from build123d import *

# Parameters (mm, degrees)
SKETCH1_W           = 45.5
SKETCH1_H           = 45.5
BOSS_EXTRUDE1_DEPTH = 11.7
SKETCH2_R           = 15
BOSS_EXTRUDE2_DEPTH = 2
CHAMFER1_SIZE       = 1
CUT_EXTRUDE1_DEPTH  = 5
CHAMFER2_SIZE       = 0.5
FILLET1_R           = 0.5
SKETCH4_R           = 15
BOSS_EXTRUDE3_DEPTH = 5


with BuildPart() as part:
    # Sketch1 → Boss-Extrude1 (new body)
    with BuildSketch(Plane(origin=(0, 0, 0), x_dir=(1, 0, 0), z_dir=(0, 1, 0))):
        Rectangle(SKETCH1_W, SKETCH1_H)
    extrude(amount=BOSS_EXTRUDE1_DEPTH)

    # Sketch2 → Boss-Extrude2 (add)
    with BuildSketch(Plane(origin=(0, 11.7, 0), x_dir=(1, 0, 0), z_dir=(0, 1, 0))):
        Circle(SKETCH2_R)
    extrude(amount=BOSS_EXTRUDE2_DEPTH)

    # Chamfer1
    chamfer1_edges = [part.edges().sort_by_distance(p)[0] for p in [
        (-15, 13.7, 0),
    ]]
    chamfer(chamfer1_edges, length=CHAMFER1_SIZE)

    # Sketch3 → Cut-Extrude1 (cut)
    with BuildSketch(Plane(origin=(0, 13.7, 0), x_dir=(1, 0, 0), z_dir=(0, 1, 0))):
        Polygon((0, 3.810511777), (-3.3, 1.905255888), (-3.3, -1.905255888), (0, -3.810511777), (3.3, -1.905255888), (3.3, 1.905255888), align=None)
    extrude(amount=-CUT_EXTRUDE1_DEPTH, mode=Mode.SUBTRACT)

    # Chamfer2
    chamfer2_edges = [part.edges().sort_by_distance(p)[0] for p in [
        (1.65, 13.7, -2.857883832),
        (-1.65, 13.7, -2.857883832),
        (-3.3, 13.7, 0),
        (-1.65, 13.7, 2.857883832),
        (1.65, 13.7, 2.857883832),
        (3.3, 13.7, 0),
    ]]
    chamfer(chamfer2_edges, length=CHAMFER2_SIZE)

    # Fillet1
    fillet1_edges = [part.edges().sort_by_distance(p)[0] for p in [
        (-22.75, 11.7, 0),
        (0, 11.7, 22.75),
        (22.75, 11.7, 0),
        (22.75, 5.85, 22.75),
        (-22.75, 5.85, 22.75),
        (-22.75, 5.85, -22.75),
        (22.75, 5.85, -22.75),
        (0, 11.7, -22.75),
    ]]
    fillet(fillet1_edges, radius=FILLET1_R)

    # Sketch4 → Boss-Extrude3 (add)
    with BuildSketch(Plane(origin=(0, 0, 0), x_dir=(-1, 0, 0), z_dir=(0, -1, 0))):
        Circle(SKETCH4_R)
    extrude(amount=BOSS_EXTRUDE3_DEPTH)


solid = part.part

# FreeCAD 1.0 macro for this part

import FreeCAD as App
import Part
import Sketcher
from FreeCAD import Vector
Q = App.Units.Quantity


def edges_at(feature, points):
    """Names of the edges that pass closest to the given points."""
    edges = feature.Shape.Edges
    near = lambda p: min(range(len(edges)), key=lambda i: edges[i].distToShape(Part.Vertex(*p))[0])
    return sorted({f"Edge{near(p) + 1}" for p in points})


def add_polygon(sketch, points):
    """Adds a closed chain of lines whose ends are joined by coincident constraints."""
    first, n = sketch.GeometryCount, len(points)
    for a, b in zip(points, points[1:] + points[:1]):
        sketch.addGeometry(Part.LineSegment(App.Vector(*a, 0), App.Vector(*b, 0)), False)
    for i in range(n):
        sketch.addConstraint(Sketcher.Constraint("Coincident", first + i, 2, first + (i + 1) % n, 1))

doc = App.newDocument("Part")
params = doc.addObject("Spreadsheet::Sheet", "Params")
for row, (alias, value) in enumerate([
    ("sketch1_width", "45.5 mm"),
    ("pad1_length", "11.7 mm"),
    ("sketch2_diameter", "30 mm"),
    ("pad2_length", "2 mm"),
    ("chamfer_size", "1 mm"),
    ("pocket1_length", "5 mm"),
    ("chamfer2_size", "0.5 mm"),
    ("fillet_radius", "0.5 mm"),
    ("sketch4_diameter", "30 mm"),
    ("pad3_length", "5 mm"),
], start=1):
    params.set(f"A{row}", alias)
    params.set(f"B{row}", "=" + value)
    params.setAlias(f"B{row}", alias)

body = doc.addObject("PartDesign::Body", "Body")

# Sketch on XZ plane
sketch1 = body.newObject("Sketcher::SketchObject", "Sketch")
sketch1.AttachmentSupport = (doc.getObject("XZ_Plane"), [""])
sketch1.MapMode = "FlatFace"
add_polygon(sketch1, [(-23, -23), (-23, 23), (23, 23), (23, -23)])  # lines 0-3
sketch1.addConstraint([
    Sketcher.Constraint("Vertical", 0),
    Sketcher.Constraint("Horizontal", 1),
    Sketcher.Constraint("Vertical", 2),
    Sketcher.Constraint("Horizontal", 3),
    Sketcher.Constraint("Symmetric", 0, 2, 2, 2, -1, 1),
    Sketcher.Constraint("Equal", 3, 0),
    Sketcher.Constraint("DistanceX", 1, 1, 1, 2, 45.5),
])
sketch1.setExpression("Constraints[10]", "Params.sketch1_width")
pad1 = body.newObject("PartDesign::Pad", "Pad")
pad1.Profile = sketch1
pad1.setExpression("Length", "Params.pad1_length")
pad1.Reversed = True

# Sketch on XZ plane
sketch2 = body.newObject("Sketcher::SketchObject", "Sketch001")
sketch2.AttachmentSupport = (doc.getObject("XZ_Plane"), [""])
sketch2.MapMode = "FlatFace"
sketch2.AttachmentOffset = App.Placement(Vector(0, 0, -11.7), App.Rotation())
sketch2.addGeometry(Part.Circle(Vector(0, 0, 0), Vector(0, 0, 1), 15), False)
sketch2.addConstraint([
    Sketcher.Constraint("Coincident", 0, 3, -1, 1),
    Sketcher.Constraint("Diameter", 0, 30.0),
])
sketch2.setExpression("Constraints[1]", "Params.sketch2_diameter")
pad2 = body.newObject("PartDesign::Pad", "Pad001")
pad2.Profile = sketch2
pad2.setExpression("Length", "Params.pad2_length")
pad2.Reversed = True
doc.recompute()

chamfer = body.newObject("PartDesign::Chamfer", "Chamfer")
chamfer.Base = (pad2, edges_at(pad2, [(-15, 13.7, 0)]))
chamfer.setExpression("Size", "Params.chamfer_size")

# Sketch on XZ plane
sketch3 = body.newObject("Sketcher::SketchObject", "Sketch002")
sketch3.AttachmentSupport = (doc.getObject("XZ_Plane"), [""])
sketch3.MapMode = "FlatFace"
sketch3.AttachmentOffset = App.Placement(Vector(0, 0, -13.7), App.Rotation())
add_polygon(sketch3, [(0, -3.8), (-3.3, -1.9), (-3.3, 1.9), (0, 3.8), (3.3, 1.9), (3.3, -1.9)])  # lines 0-5
sketch3.addConstraint([
    Sketcher.Constraint("Vertical", 1),
    Sketcher.Constraint("Vertical", 4),
    Sketcher.Constraint("Symmetric", 0, 2, 3, 2, -1, 1),
    Sketcher.Constraint("Symmetric", 2, 2, 5, 2, -1, 1),
    Sketcher.Constraint("PointOnObject", 2, 2, -2),
    Sketcher.Constraint("Parallel", 2, 5),
    Sketcher.Constraint("Horizontal", 1, 2, 3, 2),
    Sketcher.Constraint("Angle", 0, Q("150 deg")),
    Sketcher.Constraint("DistanceX", 0, 2, -1, 1, 3.3),
    Sketcher.Constraint("DistanceY", 1, 1, 1, 2, 3.810512),
])
pocket1 = body.newObject("PartDesign::Pocket", "Pocket")
pocket1.Profile = sketch3
pocket1.setExpression("Length", "Params.pocket1_length")
pocket1.Reversed = True
doc.recompute()

chamfer2 = body.newObject("PartDesign::Chamfer", "Chamfer001")
chamfer2.Base = (pocket1, edges_at(pocket1, [
    (1.65, 13.7, -2.858),
    (-1.65, 13.7, -2.858),
    (-3.3, 13.7, 0),
    (-1.65, 13.7, 2.858),
    (1.65, 13.7, 2.858),
    (3.3, 13.7, 0),
]))
chamfer2.setExpression("Size", "Params.chamfer2_size")
doc.recompute()

fillet = body.newObject("PartDesign::Fillet", "Fillet")
fillet.Base = (chamfer2, edges_at(chamfer2, [
    (-22.75, 11.7, 0),
    (0, 11.7, 22.75),
    (22.75, 11.7, 0),
    (22.75, 5.85, 22.75),
    (-22.75, 5.85, 22.75),
    (-22.75, 5.85, -22.75),
    (22.75, 5.85, -22.75),
    (0, 11.7, -22.75),
]))
fillet.setExpression("Radius", "Params.fillet_radius")

# Sketch on XZ plane
sketch4 = body.newObject("Sketcher::SketchObject", "Sketch003")
sketch4.AttachmentSupport = (doc.getObject("XZ_Plane"), [""])
sketch4.MapMode = "FlatFace"
sketch4.addGeometry(Part.Circle(Vector(0, 0, 0), Vector(0, 0, 1), 15), False)
sketch4.addConstraint([
    Sketcher.Constraint("Coincident", 0, 3, -1, 1),
    Sketcher.Constraint("Diameter", 0, 30.0),
])
sketch4.setExpression("Constraints[1]", "Params.sketch4_diameter")
pad3 = body.newObject("PartDesign::Pad", "Pad002")
pad3.Profile = sketch4
pad3.setExpression("Length", "Params.pad3_length")

doc.recompute()
